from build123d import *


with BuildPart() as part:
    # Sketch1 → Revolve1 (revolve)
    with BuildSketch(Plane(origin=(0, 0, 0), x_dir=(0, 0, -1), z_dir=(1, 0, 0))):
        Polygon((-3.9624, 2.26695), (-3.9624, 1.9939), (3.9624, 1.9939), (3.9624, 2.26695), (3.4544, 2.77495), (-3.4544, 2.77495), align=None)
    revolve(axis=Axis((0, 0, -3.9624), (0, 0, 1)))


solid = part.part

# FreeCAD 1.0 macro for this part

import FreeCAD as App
import Part
import Sketcher
from FreeCAD import Vector
Q = App.Units.Quantity


def add_polygon(sketch, points):
    """Adds a closed chain of lines whose ends are joined by coincident constraints."""
    first, n = sketch.GeometryCount, len(points)
    for a, b in zip(points, points[1:] + points[:1]):
        sketch.addGeometry(Part.LineSegment(App.Vector(*a, 0), App.Vector(*b, 0)), False)
    for i in range(n):
        sketch.addConstraint(Sketcher.Constraint("Coincident", first + i, 2, first + (i + 1) % n, 1))

doc = App.newDocument("Part")
body = doc.addObject("PartDesign::Body", "Body")

sketch1 = body.newObject("Sketcher::SketchObject", "Sketch")
sketch1.AttachmentSupport = (doc.getObject("YZ_Plane"), [""])
sketch1.MapMode = "FlatFace"
add_polygon(sketch1, [(2.27, 3.96), (1.99, 3.96), (1.99, -3.96), (2.27, -3.96), (2.77, -3.45), (2.77, 3.45)])
sketch1.addConstraint(Sketcher.Constraint("Horizontal", 0))
sketch1.addConstraint(Sketcher.Constraint("Vertical", 1))
sketch1.addConstraint(Sketcher.Constraint("Horizontal", 2))
sketch1.addConstraint(Sketcher.Constraint("Vertical", 4))
sketch1.addConstraint(Sketcher.Constraint("Symmetric", 2, 2, 5, 2, -1))
sketch1.addConstraint(Sketcher.Constraint("Perpendicular", 3, 5))
sketch1.addConstraint(Sketcher.Constraint("Equal", 3, 5))
sketch1.addConstraint(Sketcher.Constraint("DistanceY", 1, 2, 1, 1, Q("0.312 in")))
sketch1.addConstraint(Sketcher.Constraint("DistanceY", 4, 1, 4, 2, Q("0.272 in")))
sketch1.addConstraint(Sketcher.Constraint("DistanceX", -1, 1, 0, 2, Q("0.0785 in")))
sketch1.addConstraint(Sketcher.Constraint("DistanceX", 0, 2, 0, 1, Q("0.27305 mm")))
revolution = body.newObject("PartDesign::Revolution", "Revolution")
revolution.Profile = sketch1
revolution.ReferenceAxis = (sketch1, ["V_Axis"])
revolution.Angle = 360

doc.recompute()
